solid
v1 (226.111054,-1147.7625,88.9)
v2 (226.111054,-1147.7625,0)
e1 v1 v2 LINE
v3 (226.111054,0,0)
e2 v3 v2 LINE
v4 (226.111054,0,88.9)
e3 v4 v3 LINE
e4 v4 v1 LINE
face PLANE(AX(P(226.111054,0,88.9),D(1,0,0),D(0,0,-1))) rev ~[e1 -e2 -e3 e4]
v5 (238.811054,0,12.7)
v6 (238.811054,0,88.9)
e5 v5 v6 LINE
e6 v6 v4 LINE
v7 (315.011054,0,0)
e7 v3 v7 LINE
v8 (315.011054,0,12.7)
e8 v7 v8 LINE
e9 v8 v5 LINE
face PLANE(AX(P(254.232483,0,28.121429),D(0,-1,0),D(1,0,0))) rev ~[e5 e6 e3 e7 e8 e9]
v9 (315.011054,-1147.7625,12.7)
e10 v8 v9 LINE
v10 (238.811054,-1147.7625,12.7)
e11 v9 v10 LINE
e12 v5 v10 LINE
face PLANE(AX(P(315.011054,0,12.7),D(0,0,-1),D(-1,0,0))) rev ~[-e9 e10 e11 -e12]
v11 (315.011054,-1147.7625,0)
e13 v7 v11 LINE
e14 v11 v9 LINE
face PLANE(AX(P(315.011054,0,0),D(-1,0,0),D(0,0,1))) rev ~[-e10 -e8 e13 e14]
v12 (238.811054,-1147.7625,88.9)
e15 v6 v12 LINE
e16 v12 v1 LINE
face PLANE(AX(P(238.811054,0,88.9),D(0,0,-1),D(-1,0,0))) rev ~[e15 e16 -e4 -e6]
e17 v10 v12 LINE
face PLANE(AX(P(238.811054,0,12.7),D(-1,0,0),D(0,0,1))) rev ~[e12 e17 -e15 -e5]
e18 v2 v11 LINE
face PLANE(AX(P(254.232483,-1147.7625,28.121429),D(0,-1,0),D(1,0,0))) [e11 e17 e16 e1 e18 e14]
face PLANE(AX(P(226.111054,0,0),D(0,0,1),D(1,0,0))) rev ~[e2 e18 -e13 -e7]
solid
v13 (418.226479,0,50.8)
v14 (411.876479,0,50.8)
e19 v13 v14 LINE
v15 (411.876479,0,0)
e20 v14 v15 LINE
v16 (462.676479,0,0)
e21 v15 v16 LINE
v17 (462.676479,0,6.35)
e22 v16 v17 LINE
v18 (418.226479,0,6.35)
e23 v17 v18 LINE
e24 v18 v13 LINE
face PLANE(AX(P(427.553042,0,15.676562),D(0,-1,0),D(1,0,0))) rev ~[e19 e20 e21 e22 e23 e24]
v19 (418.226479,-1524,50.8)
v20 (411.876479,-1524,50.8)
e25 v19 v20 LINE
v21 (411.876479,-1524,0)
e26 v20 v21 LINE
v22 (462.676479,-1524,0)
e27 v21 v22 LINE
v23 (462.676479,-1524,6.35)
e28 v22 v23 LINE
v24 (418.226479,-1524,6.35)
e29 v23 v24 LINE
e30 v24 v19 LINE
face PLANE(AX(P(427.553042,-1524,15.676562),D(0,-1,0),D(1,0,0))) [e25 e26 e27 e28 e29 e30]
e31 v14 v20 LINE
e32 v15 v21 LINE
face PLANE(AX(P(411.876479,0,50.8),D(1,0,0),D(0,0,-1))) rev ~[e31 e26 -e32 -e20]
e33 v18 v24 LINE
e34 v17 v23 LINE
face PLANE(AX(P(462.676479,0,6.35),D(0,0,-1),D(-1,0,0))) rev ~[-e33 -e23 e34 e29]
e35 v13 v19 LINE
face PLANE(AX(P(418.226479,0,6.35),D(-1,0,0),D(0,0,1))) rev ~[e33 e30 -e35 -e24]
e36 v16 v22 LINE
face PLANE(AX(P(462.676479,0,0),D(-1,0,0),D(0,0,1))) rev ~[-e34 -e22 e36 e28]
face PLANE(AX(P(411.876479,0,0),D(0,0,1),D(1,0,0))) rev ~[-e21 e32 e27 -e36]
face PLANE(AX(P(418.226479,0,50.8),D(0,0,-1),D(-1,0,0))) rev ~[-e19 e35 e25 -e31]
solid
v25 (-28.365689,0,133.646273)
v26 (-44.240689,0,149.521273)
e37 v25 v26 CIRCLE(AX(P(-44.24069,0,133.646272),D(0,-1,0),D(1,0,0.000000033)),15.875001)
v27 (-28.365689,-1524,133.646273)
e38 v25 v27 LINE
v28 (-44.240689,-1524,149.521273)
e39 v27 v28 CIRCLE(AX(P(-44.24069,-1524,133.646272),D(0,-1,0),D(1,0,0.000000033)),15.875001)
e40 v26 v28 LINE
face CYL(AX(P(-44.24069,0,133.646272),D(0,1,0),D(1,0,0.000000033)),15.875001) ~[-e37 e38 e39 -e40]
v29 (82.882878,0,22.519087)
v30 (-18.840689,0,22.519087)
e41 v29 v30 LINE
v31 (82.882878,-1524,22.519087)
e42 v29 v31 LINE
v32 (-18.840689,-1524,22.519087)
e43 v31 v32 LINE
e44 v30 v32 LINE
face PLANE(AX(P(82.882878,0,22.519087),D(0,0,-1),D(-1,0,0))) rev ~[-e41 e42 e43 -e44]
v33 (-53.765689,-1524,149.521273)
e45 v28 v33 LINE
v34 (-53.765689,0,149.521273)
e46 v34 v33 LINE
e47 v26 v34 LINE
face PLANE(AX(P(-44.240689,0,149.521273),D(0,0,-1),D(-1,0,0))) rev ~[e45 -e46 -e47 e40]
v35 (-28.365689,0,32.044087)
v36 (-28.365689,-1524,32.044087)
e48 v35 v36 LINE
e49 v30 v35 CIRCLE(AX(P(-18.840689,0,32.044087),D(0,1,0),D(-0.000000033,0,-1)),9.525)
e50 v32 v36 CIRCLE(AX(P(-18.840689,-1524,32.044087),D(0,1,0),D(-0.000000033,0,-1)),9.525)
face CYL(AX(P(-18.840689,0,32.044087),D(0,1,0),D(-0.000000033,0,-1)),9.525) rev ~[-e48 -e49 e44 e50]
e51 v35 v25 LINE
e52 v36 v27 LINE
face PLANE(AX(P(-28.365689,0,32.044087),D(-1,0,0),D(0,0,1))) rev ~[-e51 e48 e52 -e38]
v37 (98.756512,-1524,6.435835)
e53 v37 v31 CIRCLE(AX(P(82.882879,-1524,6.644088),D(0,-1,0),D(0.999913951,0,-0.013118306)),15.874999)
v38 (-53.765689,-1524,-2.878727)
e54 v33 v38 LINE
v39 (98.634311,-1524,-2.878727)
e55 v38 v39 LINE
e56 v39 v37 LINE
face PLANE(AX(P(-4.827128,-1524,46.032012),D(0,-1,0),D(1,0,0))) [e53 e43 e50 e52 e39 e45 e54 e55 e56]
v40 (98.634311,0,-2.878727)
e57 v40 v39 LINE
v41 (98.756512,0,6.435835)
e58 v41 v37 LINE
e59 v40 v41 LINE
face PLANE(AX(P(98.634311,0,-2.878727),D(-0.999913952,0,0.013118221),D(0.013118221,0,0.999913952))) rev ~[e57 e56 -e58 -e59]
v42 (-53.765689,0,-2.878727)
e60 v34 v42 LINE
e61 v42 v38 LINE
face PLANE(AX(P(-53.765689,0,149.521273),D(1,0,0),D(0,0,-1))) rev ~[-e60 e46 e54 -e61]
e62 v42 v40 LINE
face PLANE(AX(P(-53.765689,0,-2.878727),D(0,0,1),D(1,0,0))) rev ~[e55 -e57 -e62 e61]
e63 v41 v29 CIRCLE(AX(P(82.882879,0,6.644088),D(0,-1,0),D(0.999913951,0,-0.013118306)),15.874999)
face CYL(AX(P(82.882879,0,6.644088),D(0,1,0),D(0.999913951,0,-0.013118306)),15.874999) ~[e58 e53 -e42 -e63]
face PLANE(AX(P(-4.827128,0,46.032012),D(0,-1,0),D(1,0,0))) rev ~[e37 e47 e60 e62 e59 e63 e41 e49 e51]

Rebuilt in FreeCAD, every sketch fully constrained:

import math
import FreeCAD as App
import Part
import Sketcher

V = App.Vector
Q = App.Units.Quantity

doc = App.newDocument("Part")
body = doc.addObject("PartDesign::Body", "Body")

sketch1 = body.newObject("Sketcher::SketchObject", "Sketch")
sketch1.AttachmentSupport = (doc.getObject("XZ_Plane"), [""])
sketch1.MapMode = "FlatFace"
sketch1.addGeometry([
    Part.LineSegment(V(-44.240689, 149.521273, 0), V(-53.765689, 149.521273, 0)),
    Part.LineSegment(V(-53.765689, 149.521273, 0), V(-53.765689, -2.878727, 0)),
    Part.LineSegment(V(-53.765689, -2.878727, 0), V(98.634311, -2.878727, 0)),
    Part.LineSegment(V(98.634311, -2.878727, 0), V(98.756512, 6.435835, 0)),
    Part.ArcOfCircle(Part.Circle(V(82.882879, 6.644088, 0), V(0, 0, 1), 15.874999), math.radians(-0.751645), math.radians(90.000004)),
    Part.LineSegment(V(82.882878, 22.519087, 0), V(-18.840689, 22.519087, 0)),
    Part.ArcOfCircle(Part.Circle(V(-18.840689, 32.044087, 0), V(0, 0, 1), 9.525), math.radians(-179.999998), math.radians(-90.000002)),
    Part.LineSegment(V(-28.365689, 32.044087, 0), V(-28.365689, 133.646273, 0)),
    Part.ArcOfCircle(Part.Circle(V(-44.24069, 133.646272, 0), V(0, 0, 1), 15.875001), math.radians(0.000002), math.radians(89.999998)),
], False)
sketch1.addConstraint([
    Sketcher.Constraint("Coincident", 0, 2, 1, 1),
    Sketcher.Constraint("Coincident", 1, 2, 2, 1),
    Sketcher.Constraint("Coincident", 2, 2, 3, 1),
    Sketcher.Constraint("Tangent", 3, 2, 4, 1),
    Sketcher.Constraint("Tangent", 4, 2, 5, 1),
    Sketcher.Constraint("Tangent", 5, 2, 6, 2),
    Sketcher.Constraint("Tangent", 6, 1, 7, 1),
    Sketcher.Constraint("Tangent", 7, 2, 8, 1),
    Sketcher.Constraint("Tangent", 8, 2, 0, 1),
    Sketcher.Constraint("Horizontal", 0),
    Sketcher.Constraint("Vertical", 1),
    Sketcher.Constraint("Horizontal", 2),
    Sketcher.Constraint("Horizontal", 5),
    Sketcher.Constraint("Vertical", 7),
    Sketcher.Constraint("Equal", 4, 8),
    Sketcher.Constraint("Equal", 2, 1),
    Sketcher.Constraint("DistanceX", 2, 1, 2, 2, Q("6 in")),
    Sketcher.Constraint("Radius", 4, Q("0.625 in")),
    Sketcher.Constraint("Radius", 6, Q("0.375 in")),
    Sketcher.Constraint("DistanceX", 1, 2, 6, 1, Q("1 in")),
    Sketcher.Constraint("DistanceX", 2, 2, 3, 2, 0.122201),
    Sketcher.Constraint("DistanceY", 7, 1, 7, 2, 101.602186),
    Sketcher.Constraint("DistanceX", -1, 1, 4, 3, 82.882879),
    Sketcher.Constraint("DistanceY", -1, 1, 4, 3, 6.644088),
])
pad1 = body.newObject("PartDesign::Pad", "Pad")
pad1.Profile = sketch1
pad1.Length = Q("60 in")
body2 = doc.addObject("PartDesign::Body", "Body001")

sketch2 = body2.newObject("Sketcher::SketchObject", "Sketch001")
sketch2.AttachmentSupport = (doc.getObject("XZ_Plane001"), [""])
sketch2.MapMode = "FlatFace"
sketch2.addGeometry([
    Part.LineSegment(V(238.811054, 88.9, 0), V(226.111054, 88.9, 0)),
    Part.LineSegment(V(226.111054, 88.9, 0), V(226.111054, 0, 0)),
    Part.LineSegment(V(226.111054, 0, 0), V(315.011054, 0, 0)),
    Part.LineSegment(V(315.011054, 0, 0), V(315.011054, 12.7, 0)),
    Part.LineSegment(V(315.011054, 12.7, 0), V(238.811054, 12.7, 0)),
    Part.LineSegment(V(238.811054, 12.7, 0), V(238.811054, 88.9, 0)),
], False)
sketch2.addConstraint([
    Sketcher.Constraint("Coincident", 0, 2, 1, 1),
    Sketcher.Constraint("Coincident", 1, 2, 2, 1),
    Sketcher.Constraint("Coincident", 2, 2, 3, 1),
    Sketcher.Constraint("Coincident", 3, 2, 4, 1),
    Sketcher.Constraint("Coincident", 4, 2, 5, 1),
    Sketcher.Constraint("Coincident", 5, 2, 0, 1),
    Sketcher.Constraint("Horizontal", 0),
    Sketcher.Constraint("Vertical", 1),
    Sketcher.Constraint("Horizontal", 2),
    Sketcher.Constraint("Vertical", 3),
    Sketcher.Constraint("Horizontal", 4),
    Sketcher.Constraint("Vertical", 5),
    Sketcher.Constraint("PointOnObject", 1, 2, -1),
    Sketcher.Constraint("Equal", 2, 1),
    Sketcher.Constraint("Equal", 0, 3),
    Sketcher.Constraint("DistanceX", 4, 2, 4, 1, Q("3 in")),
    Sketcher.Constraint("DistanceX", 0, 2, 0, 1, Q("0.5 in")),
    Sketcher.Constraint("DistanceX", -1, 1, 0, 2, 226.111054),
])
pad2 = body2.newObject("PartDesign::Pad", "Pad001")
pad2.Profile = sketch2
pad2.Length = Q("45.1875 in")
body3 = doc.addObject("PartDesign::Body", "Body002")

sketch3 = body3.newObject("Sketcher::SketchObject", "Sketch002")
sketch3.AttachmentSupport = (doc.getObject("XZ_Plane002"), [""])
sketch3.MapMode = "FlatFace"
sketch3.addGeometry([
    Part.LineSegment(V(418.226479, 50.8, 0), V(411.876479, 50.8, 0)),
    Part.LineSegment(V(411.876479, 50.8, 0), V(411.876479, 0, 0)),
    Part.LineSegment(V(411.876479, 0, 0), V(462.676479, 0, 0)),
    Part.LineSegment(V(462.676479, 0, 0), V(462.676479, 6.35, 0)),
    Part.LineSegment(V(462.676479, 6.35, 0), V(418.226479, 6.35, 0)),
    Part.LineSegment(V(418.226479, 6.35, 0), V(418.226479, 50.8, 0)),
], False)
sketch3.addConstraint([
    Sketcher.Constraint("Coincident", 0, 2, 1, 1),
    Sketcher.Constraint("Coincident", 1, 2, 2, 1),
    Sketcher.Constraint("Coincident", 2, 2, 3, 1),
    Sketcher.Constraint("Coincident", 3, 2, 4, 1),
    Sketcher.Constraint("Coincident", 4, 2, 5, 1),
    Sketcher.Constraint("Coincident", 5, 2, 0, 1),
    Sketcher.Constraint("Horizontal", 0),
    Sketcher.Constraint("Vertical", 1),
    Sketcher.Constraint("Horizontal", 2),
    Sketcher.Constraint("Vertical", 3),
    Sketcher.Constraint("Horizontal", 4),
    Sketcher.Constraint("Vertical", 5),
    Sketcher.Constraint("PointOnObject", 1, 2, -1),
    Sketcher.Constraint("Equal", 2, 1),
    Sketcher.Constraint("Equal", 0, 3),
    Sketcher.Constraint("DistanceX", 2, 1, 2, 2, Q("2 in")),
    Sketcher.Constraint("DistanceX", 0, 2, 0, 1, Q("0.25 in")),
    Sketcher.Constraint("DistanceX", -1, 1, 0, 2, 411.876479),
])
pad3 = body3.newObject("PartDesign::Pad", "Pad002")
pad3.Profile = sketch3
pad3.Length = Q("60 in")

doc.recompute()
